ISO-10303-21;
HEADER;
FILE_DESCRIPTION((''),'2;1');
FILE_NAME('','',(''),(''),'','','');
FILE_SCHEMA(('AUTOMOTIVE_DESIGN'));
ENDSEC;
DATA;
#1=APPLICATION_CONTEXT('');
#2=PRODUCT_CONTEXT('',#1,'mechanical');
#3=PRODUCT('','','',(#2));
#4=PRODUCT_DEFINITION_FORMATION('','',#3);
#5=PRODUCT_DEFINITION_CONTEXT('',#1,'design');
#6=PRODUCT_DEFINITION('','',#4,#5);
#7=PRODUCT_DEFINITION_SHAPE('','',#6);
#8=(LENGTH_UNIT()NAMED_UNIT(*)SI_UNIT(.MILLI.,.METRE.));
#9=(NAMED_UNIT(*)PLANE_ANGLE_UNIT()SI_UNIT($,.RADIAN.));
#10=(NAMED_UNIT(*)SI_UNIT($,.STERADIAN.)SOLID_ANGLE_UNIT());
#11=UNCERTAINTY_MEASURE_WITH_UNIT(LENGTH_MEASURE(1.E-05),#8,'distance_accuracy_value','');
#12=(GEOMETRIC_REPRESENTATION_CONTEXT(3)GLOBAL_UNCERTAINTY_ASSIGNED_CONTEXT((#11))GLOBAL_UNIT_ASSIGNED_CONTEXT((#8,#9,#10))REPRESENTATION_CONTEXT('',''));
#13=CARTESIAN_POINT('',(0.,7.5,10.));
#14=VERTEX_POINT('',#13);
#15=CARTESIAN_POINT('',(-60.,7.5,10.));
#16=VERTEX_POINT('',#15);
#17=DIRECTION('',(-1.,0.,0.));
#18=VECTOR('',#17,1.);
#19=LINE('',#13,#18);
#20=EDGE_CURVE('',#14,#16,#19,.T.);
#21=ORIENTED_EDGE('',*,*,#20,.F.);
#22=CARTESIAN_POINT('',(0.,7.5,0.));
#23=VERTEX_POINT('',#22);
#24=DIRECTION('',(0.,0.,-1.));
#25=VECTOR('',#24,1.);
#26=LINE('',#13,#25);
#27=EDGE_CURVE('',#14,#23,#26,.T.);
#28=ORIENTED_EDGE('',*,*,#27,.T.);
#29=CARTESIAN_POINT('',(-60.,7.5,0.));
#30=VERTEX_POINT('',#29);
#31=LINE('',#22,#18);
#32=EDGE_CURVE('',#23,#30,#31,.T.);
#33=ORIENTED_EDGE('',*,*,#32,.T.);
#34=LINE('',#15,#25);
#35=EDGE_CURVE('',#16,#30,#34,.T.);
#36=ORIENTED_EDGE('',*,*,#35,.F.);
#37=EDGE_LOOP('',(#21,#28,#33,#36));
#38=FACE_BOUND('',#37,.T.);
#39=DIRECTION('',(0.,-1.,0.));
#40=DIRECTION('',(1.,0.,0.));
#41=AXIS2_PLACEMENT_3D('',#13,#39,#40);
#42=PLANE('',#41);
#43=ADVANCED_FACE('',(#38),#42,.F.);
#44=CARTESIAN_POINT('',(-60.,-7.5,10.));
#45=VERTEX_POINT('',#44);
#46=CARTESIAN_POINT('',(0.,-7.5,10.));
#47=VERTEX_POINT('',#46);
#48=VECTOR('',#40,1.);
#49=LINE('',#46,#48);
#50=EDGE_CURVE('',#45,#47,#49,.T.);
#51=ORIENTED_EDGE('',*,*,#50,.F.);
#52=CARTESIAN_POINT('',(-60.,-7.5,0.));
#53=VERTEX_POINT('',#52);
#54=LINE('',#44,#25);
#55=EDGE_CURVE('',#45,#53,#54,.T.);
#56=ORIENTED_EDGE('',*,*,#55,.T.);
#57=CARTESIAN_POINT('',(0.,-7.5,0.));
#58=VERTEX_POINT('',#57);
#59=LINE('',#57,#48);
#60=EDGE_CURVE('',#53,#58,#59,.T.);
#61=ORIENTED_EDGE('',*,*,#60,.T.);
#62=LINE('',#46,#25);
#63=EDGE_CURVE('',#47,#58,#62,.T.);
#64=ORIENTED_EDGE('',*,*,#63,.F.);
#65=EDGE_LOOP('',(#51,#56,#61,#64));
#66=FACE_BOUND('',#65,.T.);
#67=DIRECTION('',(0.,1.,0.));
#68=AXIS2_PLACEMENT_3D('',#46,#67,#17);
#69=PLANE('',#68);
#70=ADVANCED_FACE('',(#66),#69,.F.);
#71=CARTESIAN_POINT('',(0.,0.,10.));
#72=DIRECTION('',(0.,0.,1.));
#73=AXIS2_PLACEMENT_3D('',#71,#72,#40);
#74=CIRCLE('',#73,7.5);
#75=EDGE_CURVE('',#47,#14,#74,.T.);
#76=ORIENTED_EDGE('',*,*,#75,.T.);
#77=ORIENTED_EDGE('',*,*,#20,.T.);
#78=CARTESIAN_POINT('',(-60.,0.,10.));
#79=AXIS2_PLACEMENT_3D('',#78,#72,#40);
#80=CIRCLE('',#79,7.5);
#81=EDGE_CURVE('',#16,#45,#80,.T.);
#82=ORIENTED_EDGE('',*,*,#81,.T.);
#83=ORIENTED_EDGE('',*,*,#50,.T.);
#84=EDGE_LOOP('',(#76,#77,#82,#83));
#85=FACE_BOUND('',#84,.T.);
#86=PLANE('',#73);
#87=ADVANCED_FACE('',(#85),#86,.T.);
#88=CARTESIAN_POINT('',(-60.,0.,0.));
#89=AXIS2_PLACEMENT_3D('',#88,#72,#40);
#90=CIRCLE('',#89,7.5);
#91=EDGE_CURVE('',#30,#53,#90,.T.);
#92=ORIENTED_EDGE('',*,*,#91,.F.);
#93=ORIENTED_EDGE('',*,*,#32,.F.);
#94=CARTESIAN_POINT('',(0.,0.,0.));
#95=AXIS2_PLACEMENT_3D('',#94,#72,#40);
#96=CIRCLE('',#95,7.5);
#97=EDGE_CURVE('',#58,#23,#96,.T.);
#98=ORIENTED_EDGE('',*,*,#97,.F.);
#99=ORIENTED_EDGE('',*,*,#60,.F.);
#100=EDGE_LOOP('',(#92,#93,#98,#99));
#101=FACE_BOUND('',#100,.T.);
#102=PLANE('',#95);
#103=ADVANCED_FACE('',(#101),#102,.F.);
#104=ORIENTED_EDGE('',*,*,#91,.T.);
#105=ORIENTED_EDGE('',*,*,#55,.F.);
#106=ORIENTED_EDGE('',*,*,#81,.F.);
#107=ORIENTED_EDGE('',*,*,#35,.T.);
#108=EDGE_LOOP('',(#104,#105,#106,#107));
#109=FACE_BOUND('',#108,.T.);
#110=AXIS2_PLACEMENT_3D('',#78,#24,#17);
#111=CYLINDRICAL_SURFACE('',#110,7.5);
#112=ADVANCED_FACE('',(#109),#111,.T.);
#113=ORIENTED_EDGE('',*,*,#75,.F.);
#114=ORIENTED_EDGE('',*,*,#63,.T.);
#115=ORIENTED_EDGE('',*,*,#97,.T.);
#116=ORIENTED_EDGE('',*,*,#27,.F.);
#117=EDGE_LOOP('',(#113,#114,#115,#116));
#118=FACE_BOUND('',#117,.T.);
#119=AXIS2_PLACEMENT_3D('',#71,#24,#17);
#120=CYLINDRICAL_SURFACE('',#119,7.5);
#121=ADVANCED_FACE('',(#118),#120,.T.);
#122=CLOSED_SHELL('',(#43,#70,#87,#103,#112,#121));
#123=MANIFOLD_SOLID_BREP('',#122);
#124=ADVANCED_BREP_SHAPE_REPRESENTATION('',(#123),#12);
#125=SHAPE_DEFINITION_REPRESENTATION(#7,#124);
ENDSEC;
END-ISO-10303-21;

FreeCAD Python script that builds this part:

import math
import FreeCAD as App
import Part
import Sketcher

V = App.Vector
Q = App.Units.Quantity

doc = App.newDocument("Part")
body = doc.addObject("PartDesign::Body", "Body")

# Sketch on XY plane
sketch1 = doc.addObject("Sketcher::SketchObject", "Sketch")
body.addObject(sketch1)
sketch1.AttachmentSupport = (doc.XY_Plane, [""])
sketch1.MapMode = "FlatFace"
sketch1.addGeometry([
    Part.LineSegment(V(-60, -8, 0), V(0, -8, 0)),
    Part.ArcOfCircle(Part.Circle(V(0, 0, 0), V(0, 0, 1), 8), math.radians(-90), math.radians(90)),
    Part.LineSegment(V(0, 8, 0), V(-60, 8, 0)),
    Part.ArcOfCircle(Part.Circle(V(-60, 0, 0), V(0, 0, 1), 8), math.radians(90), math.radians(270)),
], False)
sketch1.addConstraint([
    Sketcher.Constraint("Tangent", 0, 2, 1, 1),
    Sketcher.Constraint("Tangent", 1, 2, 2, 1),
    Sketcher.Constraint("Tangent", 2, 2, 3, 1),
    Sketcher.Constraint("Tangent", 3, 2, 0, 1),
    Sketcher.Constraint("Horizontal", 0),
    Sketcher.Constraint("Horizontal", 2),
    Sketcher.Constraint("Coincident", 1, 3, -1, 1),
    Sketcher.Constraint("Radius", 1, Q("7.5 mm")),
    Sketcher.Constraint("DistanceX", 0, 1, 0, 2, Q("60 mm")),
])
pad1 = doc.addObject("PartDesign::Pad", "Pad")
body.addObject(pad1)
pad1.Profile = sketch1
pad1.Length = 10

doc.recompute()
